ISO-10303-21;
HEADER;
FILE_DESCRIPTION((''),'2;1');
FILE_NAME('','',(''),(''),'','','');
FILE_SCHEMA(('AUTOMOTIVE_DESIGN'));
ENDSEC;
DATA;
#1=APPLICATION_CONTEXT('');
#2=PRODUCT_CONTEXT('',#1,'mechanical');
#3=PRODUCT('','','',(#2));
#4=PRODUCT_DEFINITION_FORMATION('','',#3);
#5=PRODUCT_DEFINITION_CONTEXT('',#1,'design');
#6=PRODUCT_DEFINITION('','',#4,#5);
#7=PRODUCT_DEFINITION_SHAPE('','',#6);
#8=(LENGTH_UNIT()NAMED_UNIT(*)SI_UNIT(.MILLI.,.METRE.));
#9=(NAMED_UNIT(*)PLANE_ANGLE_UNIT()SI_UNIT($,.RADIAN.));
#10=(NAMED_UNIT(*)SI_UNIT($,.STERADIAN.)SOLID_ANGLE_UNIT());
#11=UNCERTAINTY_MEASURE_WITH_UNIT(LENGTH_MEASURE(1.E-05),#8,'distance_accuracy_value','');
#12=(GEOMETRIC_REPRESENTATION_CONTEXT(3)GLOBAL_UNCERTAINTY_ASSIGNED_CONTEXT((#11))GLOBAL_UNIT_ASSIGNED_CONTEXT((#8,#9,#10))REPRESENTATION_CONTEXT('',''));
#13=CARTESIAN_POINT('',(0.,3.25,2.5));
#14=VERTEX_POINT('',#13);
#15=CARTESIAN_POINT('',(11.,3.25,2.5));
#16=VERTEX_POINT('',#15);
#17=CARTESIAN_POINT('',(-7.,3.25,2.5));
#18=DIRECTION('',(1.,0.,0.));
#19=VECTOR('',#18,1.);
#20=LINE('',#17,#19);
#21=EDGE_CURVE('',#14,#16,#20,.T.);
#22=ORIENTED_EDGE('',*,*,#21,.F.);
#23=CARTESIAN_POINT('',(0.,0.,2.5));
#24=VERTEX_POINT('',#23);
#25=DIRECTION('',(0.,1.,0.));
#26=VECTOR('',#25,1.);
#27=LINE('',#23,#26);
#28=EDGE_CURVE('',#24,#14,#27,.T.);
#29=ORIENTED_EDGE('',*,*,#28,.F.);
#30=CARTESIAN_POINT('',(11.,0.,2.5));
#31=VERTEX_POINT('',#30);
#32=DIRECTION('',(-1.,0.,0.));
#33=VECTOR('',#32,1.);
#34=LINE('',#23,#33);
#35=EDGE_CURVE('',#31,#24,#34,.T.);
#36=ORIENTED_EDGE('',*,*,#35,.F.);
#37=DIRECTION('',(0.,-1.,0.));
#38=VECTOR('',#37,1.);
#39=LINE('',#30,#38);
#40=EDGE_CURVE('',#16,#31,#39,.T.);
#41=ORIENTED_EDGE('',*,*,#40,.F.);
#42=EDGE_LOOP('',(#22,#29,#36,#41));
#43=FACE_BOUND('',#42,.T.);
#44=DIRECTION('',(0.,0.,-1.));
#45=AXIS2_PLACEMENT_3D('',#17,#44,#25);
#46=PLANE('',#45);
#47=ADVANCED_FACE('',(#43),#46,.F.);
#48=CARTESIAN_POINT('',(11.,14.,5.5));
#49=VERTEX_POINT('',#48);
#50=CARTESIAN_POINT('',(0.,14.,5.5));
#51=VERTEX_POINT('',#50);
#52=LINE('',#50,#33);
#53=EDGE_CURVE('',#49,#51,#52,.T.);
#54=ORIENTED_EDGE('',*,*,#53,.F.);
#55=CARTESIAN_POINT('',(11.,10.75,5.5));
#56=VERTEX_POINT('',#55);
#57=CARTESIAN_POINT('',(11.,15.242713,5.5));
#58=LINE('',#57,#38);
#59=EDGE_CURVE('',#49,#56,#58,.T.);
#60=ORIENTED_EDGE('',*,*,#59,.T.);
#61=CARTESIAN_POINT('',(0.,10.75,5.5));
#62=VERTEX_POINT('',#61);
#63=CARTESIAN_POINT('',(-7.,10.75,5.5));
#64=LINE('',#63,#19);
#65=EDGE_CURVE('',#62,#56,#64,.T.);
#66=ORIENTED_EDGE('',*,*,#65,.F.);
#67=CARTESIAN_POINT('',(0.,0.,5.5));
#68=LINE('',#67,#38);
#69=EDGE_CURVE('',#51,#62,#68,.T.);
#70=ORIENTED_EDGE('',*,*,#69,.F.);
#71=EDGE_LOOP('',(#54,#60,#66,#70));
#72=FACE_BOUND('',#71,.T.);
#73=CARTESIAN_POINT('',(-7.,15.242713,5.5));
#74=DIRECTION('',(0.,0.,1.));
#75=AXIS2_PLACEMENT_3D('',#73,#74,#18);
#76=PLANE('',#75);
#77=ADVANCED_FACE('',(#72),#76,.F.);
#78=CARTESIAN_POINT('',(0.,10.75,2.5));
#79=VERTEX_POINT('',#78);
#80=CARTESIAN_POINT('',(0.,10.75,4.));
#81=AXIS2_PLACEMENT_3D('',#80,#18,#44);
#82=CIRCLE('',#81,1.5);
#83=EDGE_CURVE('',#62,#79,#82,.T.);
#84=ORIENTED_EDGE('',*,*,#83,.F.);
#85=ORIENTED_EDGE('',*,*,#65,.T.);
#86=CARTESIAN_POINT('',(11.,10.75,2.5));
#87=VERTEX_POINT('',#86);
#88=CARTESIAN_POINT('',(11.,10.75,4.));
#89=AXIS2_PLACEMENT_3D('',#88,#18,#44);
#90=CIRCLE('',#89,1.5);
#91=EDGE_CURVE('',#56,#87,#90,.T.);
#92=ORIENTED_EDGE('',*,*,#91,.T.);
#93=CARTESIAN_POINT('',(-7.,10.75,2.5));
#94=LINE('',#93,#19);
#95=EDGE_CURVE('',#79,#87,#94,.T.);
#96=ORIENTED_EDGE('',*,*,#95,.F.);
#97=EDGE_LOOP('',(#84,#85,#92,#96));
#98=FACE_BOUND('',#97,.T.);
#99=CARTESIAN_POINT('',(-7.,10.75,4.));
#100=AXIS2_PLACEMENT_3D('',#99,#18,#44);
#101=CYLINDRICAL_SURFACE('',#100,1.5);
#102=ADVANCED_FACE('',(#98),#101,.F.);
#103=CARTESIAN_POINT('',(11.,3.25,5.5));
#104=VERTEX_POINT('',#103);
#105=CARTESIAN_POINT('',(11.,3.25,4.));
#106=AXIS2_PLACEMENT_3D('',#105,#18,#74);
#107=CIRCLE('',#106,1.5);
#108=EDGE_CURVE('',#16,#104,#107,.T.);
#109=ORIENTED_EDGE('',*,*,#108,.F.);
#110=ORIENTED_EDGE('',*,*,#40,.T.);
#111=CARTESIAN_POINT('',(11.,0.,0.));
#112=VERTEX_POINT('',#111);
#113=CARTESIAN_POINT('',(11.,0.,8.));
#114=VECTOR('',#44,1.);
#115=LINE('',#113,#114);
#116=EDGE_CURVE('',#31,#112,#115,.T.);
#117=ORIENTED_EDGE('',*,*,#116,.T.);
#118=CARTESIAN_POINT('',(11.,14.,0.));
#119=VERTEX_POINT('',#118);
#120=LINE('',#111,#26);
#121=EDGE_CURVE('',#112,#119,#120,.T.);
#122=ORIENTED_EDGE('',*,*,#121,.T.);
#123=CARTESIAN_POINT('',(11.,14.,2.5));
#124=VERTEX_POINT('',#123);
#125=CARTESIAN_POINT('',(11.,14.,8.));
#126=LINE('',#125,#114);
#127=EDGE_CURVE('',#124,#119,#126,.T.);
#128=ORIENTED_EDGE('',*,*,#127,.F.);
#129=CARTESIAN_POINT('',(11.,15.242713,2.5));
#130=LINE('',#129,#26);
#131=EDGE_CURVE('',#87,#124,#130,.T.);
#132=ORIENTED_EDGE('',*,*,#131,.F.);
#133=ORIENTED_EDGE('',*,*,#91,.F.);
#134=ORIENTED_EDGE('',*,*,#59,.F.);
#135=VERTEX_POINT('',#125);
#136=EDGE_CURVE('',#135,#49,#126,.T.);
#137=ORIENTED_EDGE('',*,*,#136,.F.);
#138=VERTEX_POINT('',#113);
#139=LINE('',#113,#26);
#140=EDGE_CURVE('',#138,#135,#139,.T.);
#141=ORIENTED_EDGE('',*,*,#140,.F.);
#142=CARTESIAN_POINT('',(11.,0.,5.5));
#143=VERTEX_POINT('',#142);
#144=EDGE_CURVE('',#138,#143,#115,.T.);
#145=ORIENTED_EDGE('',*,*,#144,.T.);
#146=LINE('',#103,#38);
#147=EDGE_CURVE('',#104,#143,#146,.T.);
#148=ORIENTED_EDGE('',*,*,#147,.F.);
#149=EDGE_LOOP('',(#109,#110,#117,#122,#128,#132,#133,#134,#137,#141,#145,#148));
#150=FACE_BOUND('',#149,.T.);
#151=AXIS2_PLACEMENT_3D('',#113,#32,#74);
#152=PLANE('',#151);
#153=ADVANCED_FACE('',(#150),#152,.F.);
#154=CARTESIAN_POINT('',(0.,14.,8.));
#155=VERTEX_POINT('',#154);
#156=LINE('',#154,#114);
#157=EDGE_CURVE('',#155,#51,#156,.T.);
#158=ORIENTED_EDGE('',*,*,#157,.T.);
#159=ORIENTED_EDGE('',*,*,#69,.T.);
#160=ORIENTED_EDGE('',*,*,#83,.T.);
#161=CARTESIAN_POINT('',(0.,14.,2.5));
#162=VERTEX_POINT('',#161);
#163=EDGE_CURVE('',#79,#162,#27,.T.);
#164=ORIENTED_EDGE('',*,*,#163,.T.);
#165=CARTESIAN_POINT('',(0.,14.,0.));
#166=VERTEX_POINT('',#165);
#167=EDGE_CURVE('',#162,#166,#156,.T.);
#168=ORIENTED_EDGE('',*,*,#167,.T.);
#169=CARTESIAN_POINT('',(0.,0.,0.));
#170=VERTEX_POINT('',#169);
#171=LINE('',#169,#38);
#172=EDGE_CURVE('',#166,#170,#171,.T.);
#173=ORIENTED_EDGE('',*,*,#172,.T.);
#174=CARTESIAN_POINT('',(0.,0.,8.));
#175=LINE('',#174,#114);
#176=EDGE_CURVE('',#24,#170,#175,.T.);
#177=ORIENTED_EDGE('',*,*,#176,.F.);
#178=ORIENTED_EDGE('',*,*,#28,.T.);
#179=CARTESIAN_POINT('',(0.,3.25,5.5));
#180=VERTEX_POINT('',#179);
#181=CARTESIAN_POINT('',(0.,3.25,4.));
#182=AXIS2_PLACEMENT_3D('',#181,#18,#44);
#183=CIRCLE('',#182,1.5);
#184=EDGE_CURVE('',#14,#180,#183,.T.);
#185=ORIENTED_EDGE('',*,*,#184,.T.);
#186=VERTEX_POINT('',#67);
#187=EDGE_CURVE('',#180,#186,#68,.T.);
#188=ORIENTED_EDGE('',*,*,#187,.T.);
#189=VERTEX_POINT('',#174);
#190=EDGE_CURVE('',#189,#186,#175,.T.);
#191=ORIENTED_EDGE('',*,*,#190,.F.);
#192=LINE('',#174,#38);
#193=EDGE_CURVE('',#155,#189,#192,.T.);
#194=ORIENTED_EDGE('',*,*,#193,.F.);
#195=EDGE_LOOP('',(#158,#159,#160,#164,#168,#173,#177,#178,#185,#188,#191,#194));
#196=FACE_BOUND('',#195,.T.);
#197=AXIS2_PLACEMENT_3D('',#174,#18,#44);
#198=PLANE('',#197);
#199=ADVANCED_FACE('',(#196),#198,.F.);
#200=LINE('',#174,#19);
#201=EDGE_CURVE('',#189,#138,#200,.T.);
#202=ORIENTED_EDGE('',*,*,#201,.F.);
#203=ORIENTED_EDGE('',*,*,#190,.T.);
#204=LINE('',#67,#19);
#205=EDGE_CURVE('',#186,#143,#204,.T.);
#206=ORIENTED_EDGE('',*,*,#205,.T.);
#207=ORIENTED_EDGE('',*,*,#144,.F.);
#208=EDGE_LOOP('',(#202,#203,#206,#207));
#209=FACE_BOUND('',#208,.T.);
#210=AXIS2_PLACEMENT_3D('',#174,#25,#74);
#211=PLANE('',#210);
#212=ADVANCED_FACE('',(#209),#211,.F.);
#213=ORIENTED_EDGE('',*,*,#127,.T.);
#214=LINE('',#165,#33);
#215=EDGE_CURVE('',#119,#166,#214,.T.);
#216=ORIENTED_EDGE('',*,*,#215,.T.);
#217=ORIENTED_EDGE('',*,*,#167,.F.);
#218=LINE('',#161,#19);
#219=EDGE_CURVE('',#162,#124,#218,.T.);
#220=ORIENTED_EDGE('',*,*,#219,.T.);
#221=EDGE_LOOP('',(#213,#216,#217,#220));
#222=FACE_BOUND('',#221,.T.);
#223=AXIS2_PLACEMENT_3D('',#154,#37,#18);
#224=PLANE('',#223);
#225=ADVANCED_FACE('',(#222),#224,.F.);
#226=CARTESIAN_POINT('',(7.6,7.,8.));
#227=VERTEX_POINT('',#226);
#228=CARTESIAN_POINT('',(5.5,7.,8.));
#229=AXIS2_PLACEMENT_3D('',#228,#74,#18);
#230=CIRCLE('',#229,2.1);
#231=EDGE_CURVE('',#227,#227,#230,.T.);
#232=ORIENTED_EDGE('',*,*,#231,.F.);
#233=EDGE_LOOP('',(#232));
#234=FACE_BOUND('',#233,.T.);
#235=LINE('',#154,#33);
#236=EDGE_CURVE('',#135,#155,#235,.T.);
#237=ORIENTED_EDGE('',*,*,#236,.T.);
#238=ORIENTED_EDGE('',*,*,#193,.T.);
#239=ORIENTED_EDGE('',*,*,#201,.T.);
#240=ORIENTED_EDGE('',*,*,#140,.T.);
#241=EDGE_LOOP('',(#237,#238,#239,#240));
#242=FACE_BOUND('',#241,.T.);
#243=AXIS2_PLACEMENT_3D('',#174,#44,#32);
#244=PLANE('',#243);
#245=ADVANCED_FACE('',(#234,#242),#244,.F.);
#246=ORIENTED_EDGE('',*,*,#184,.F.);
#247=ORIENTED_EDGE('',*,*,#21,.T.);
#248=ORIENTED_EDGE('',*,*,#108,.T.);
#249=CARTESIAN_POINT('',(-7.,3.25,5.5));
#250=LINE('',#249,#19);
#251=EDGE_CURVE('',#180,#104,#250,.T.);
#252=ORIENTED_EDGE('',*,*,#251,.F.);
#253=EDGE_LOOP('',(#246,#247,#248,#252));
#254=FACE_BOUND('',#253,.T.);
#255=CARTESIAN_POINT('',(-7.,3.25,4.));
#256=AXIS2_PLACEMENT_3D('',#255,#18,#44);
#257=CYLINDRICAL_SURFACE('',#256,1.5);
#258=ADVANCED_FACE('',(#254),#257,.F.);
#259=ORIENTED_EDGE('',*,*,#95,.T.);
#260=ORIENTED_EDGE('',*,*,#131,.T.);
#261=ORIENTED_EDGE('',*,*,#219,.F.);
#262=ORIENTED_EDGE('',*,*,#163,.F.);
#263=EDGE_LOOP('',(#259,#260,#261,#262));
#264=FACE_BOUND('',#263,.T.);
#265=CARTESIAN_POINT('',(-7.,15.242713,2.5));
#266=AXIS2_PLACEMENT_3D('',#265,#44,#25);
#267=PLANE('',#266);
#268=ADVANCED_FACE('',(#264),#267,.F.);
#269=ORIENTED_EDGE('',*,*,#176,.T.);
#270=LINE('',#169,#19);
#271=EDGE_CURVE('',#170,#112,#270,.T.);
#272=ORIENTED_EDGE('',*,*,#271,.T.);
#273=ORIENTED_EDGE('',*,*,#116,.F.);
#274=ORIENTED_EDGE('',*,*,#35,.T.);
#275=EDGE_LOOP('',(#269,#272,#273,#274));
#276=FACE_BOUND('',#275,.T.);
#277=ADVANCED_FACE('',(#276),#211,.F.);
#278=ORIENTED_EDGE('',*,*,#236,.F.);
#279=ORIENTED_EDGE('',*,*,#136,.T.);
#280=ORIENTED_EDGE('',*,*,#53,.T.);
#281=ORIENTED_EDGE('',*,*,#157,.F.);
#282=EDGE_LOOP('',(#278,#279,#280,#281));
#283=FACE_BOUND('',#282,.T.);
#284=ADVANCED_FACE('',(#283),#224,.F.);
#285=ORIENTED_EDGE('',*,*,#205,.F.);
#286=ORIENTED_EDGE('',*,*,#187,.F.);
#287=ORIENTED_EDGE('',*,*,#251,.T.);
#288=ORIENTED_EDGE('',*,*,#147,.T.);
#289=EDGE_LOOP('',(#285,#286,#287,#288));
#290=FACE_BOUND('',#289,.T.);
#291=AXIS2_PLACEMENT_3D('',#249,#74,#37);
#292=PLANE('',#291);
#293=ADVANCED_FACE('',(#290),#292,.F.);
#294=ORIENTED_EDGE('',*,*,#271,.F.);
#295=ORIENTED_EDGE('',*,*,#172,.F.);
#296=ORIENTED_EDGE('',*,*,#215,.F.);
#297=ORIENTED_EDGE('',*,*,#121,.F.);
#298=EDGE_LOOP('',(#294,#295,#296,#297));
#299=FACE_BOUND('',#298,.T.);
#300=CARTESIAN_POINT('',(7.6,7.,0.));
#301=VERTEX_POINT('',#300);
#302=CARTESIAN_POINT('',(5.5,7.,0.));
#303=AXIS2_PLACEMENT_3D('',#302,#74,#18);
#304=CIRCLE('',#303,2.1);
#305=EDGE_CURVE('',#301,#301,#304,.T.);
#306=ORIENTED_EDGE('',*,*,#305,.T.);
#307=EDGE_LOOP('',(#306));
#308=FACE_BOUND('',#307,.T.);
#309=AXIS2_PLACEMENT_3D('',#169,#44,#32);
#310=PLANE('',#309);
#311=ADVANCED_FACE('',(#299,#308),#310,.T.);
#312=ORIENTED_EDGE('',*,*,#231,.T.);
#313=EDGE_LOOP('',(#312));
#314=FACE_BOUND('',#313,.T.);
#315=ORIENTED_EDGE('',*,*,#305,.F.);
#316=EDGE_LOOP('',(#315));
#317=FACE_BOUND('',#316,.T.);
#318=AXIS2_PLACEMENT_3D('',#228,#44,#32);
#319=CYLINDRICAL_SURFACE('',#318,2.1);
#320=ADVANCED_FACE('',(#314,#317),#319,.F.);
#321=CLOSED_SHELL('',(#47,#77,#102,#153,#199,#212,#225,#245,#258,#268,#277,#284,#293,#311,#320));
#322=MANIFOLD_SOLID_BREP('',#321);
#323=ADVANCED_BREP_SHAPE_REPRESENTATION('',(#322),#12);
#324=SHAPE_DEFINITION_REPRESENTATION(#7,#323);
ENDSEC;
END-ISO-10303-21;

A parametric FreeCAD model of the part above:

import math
import FreeCAD as App
import Part
import Sketcher


def add_polygon(sketch, points):
    """Adds a closed chain of lines whose ends are joined by coincident constraints."""
    first, n = sketch.GeometryCount, len(points)
    for a, b in zip(points, points[1:] + points[:1]):
        sketch.addGeometry(Part.LineSegment(App.Vector(*a, 0), App.Vector(*b, 0)), False)
    for i in range(n):
        sketch.addConstraint(Sketcher.Constraint("Coincident", first + i, 2, first + (i + 1) % n, 1))

doc = App.newDocument("Part")
body = doc.addObject("PartDesign::Body", "Body")

sketch1 = body.newObject("Sketcher::SketchObject", "Sketch")
sketch1.AttachmentSupport = (doc.getObject("XY_Plane"), [""])
sketch1.MapMode = "FlatFace"
add_polygon(sketch1, [(0, 14), (0, 0), (11, 0), (11, 14)])
sketch1.addGeometry(Part.Circle(App.Vector(5.5, 7, 0), App.Vector(0, 0, 1), 2.1), False)
sketch1.addConstraint([
    Sketcher.Constraint("Vertical", 0),
    Sketcher.Constraint("Horizontal", 1),
    Sketcher.Constraint("Vertical", 2),
    Sketcher.Constraint("Horizontal", 3),
    Sketcher.Constraint("Coincident", 0, 2, -1, 1),
    Sketcher.Constraint("Diameter", 4, 4.2),
    Sketcher.Constraint("DistanceX", 1, 1, 1, 2, 11.0),
    Sketcher.Constraint("DistanceY", 0, 2, 0, 1, 14.0),
    Sketcher.Constraint("DistanceY", -1, 1, 4, 3, 7.0),
    Sketcher.Constraint("DistanceX", -1, 1, 4, 3, 5.5),
])
pad1 = body.newObject("PartDesign::Pad", "Pad")
pad1.Profile = sketch1
pad1.Length = 8

sketch2 = body.newObject("Sketcher::SketchObject", "Sketch001")
sketch2.AttachmentSupport = (doc.getObject("YZ_Plane"), [""])
sketch2.MapMode = "FlatFace"
sketch2.AttachmentOffset = App.Placement(App.Vector(0, 0, 11), App.Rotation())
sketch2.addGeometry([
    Part.LineSegment(App.Vector(15.2, 2.5, 0), App.Vector(15.2, 5.5, 0)),
    Part.LineSegment(App.Vector(15.2, 5.5, 0), App.Vector(10.8, 5.5, 0)),
    Part.ArcOfCircle(Part.Circle(App.Vector(10.8, 4, 0), App.Vector(0, 0, 1), 1.5), math.radians(90), math.radians(270)),
    Part.LineSegment(App.Vector(10.8, 2.5, 0), App.Vector(15.2, 2.5, 0)),
    Part.LineSegment(App.Vector(-2, 5.5, 0), App.Vector(-2, 2.5, 0)),
    Part.LineSegment(App.Vector(-2, 2.5, 0), App.Vector(3.2, 2.5, 0)),
    Part.ArcOfCircle(Part.Circle(App.Vector(3.2, 4, 0), App.Vector(0, 0, 1), 1.5), math.radians(-90), math.radians(90)),
    Part.LineSegment(App.Vector(3.3, 5.5, 0), App.Vector(-2, 5.5, 0)),
], False)
sketch2.addConstraint([
    Sketcher.Constraint("Coincident", 0, 2, 1, 1),
    Sketcher.Constraint("Tangent", 1, 2, 2, 1),
    Sketcher.Constraint("Tangent", 2, 2, 3, 1),
    Sketcher.Constraint("Coincident", 3, 2, 0, 1),
    Sketcher.Constraint("Coincident", 4, 2, 5, 1),
    Sketcher.Constraint("Tangent", 5, 2, 6, 1),
    Sketcher.Constraint("Tangent", 6, 2, 7, 1),
    Sketcher.Constraint("Coincident", 7, 2, 4, 1),
    Sketcher.Constraint("Vertical", 0),
    Sketcher.Constraint("Horizontal", 1),
    Sketcher.Constraint("Horizontal", 3),
    Sketcher.Constraint("Vertical", 4),
    Sketcher.Constraint("Horizontal", 5),
    Sketcher.Constraint("Horizontal", 7),
    Sketcher.Constraint("Equal", 2, 6),
    Sketcher.Constraint("Horizontal", 2, 3, 6, 3),
    Sketcher.Constraint("Radius", 2, 1.5),
    Sketcher.Constraint("DistanceY", -1, 1, 2, 3, 4.0),
    Sketcher.Constraint("DistanceX", 6, 3, 2, 3, 7.5),
    Sketcher.Constraint("DistanceX", -1, 1, 2, 3, 10.75),
    Sketcher.Constraint("DistanceX", 1, 2, 1, 1, 4.492713),
    Sketcher.Constraint("DistanceX", 5, 1, 5, 2, 5.215554),
])
pocket1 = body.newObject("PartDesign::Pocket", "Pocket")
pocket1.Profile = sketch2
pocket1.Length = 18

doc.recompute()
